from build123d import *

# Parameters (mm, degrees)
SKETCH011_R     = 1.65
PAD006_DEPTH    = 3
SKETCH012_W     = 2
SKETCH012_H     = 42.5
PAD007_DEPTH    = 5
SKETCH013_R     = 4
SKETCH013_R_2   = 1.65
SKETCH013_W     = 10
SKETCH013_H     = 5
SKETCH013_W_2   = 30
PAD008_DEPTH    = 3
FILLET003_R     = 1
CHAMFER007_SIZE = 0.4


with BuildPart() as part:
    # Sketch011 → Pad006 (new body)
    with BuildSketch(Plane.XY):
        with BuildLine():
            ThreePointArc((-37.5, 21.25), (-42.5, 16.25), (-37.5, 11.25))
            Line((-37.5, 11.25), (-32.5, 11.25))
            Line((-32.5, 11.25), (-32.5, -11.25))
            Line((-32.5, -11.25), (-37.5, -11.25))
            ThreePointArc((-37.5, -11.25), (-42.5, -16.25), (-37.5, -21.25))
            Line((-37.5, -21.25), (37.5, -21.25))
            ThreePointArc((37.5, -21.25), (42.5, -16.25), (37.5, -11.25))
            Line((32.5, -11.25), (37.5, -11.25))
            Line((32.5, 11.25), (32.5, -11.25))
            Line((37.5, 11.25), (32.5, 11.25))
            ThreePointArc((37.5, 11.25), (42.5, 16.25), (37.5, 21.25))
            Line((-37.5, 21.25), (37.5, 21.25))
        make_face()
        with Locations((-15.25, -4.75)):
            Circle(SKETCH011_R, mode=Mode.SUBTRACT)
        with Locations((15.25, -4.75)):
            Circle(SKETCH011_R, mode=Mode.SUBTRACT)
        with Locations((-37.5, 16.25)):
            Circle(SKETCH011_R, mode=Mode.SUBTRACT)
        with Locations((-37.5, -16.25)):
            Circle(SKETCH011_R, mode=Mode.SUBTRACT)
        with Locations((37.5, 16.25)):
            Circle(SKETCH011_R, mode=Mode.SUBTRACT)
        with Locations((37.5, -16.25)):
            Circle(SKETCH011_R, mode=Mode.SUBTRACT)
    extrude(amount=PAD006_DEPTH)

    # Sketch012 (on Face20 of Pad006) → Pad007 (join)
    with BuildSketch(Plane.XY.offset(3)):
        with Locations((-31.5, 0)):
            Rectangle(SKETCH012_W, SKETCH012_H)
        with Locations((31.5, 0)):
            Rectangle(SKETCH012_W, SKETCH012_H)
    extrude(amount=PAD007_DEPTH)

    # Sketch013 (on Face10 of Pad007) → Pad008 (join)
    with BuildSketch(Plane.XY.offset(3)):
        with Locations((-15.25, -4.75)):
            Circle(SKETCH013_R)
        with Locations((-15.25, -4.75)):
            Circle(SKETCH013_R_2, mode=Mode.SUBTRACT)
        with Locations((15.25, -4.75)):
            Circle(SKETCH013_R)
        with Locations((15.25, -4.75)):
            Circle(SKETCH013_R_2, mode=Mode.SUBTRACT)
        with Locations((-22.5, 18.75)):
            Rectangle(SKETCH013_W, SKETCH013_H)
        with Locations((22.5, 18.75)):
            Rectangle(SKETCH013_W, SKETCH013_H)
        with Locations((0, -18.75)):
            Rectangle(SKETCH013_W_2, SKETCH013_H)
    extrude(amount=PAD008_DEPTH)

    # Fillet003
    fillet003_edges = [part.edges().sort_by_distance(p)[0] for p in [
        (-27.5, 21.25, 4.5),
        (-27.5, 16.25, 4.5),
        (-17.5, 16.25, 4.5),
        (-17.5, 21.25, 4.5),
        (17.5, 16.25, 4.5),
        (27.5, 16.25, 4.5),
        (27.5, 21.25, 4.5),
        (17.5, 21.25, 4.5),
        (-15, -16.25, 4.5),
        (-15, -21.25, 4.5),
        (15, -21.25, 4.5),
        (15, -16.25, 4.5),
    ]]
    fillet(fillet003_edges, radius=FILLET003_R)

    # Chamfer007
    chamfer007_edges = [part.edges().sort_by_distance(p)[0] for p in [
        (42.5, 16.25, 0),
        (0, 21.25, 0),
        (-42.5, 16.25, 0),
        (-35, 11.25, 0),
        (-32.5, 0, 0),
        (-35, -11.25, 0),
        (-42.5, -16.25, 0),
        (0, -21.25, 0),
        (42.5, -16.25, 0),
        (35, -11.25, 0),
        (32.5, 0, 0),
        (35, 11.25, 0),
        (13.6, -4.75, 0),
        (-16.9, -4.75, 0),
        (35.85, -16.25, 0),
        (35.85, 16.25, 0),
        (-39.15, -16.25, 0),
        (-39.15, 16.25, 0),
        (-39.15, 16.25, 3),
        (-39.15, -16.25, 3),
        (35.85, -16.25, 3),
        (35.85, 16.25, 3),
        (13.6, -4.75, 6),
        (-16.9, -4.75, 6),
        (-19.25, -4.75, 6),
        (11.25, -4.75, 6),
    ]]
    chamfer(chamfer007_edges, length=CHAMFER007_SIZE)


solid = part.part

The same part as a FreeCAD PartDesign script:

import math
import FreeCAD as App
import Part
import Sketcher

V = App.Vector


def edges_at(feature, points):
    """Names of the edges that pass closest to the given points."""
    edges = feature.Shape.Edges
    near = lambda p: min(range(len(edges)), key=lambda i: edges[i].distToShape(Part.Vertex(*p))[0])
    return sorted({f"Edge{near(p) + 1}" for p in points})


def add_polygon(sketch, points):
    """Adds a closed chain of lines whose ends are joined by coincident constraints."""
    first, n = sketch.GeometryCount, len(points)
    for a, b in zip(points, points[1:] + points[:1]):
        sketch.addGeometry(Part.LineSegment(App.Vector(*a, 0), App.Vector(*b, 0)), False)
    for i in range(n):
        sketch.addConstraint(Sketcher.Constraint("Coincident", first + i, 2, first + (i + 1) % n, 1))

doc = App.newDocument("Part")
params = doc.addObject("Spreadsheet::Sheet", "Params")
for row, (alias, value) in enumerate([
    ("sketch1_radius", "5 mm"),
    ("sketch1_diameter", "3.3 mm"),
    ("sketch1_width", "5 mm"),
    ("sketch1_width2", "75 mm"),
    ("sketch1_height", "22.5 mm"),
    ("pad1_length", "3 mm"),
    ("sketch2_width", "2 mm"),
    ("sketch2_height", "42.5 mm"),
    ("pad2_length", "5 mm"),
    ("sketch3_diameter", "8 mm"),
    ("sketch3_diameter2", "3.3 mm"),
    ("sketch3_width", "10 mm"),
    ("sketch3_width2", "30 mm"),
    ("sketch3_height", "5 mm"),
    ("pad3_length", "3 mm"),
    ("fillet_radius", "1 mm"),
    ("chamfer_size", "0.4 mm"),
], start=1):
    params.set(f"A{row}", alias)
    params.set(f"B{row}", "=" + value)
    params.setAlias(f"B{row}", alias)

body = doc.addObject("PartDesign::Body", "Body")

sketch1 = doc.addObject("Sketcher::SketchObject", "Sketch")
body.addObject(sketch1)
sketch1.AttachmentSupport = (doc.XY_Plane, [""])
sketch1.MapMode = "FlatFace"
sketch1.addGeometry(Part.ArcOfCircle(Part.Circle(V(-37.5, 16.2, 0), V(0, 0, 1), 5), math.radians(90), math.radians(270)), False)
sketch1.addGeometry(Part.LineSegment(V(-37.5, 11.2, 0), V(-32.5, 11.2, 0)), False)
sketch1.addGeometry(Part.LineSegment(V(-32.5, 11.2, 0), V(-32.5, -11.2, 0)), False)
sketch1.addGeometry(Part.LineSegment(V(-32.5, -11.2, 0), V(-37.5, -11.2, 0)), False)
sketch1.addGeometry(Part.ArcOfCircle(Part.Circle(V(-37.5, -16.2, 0), V(0, 0, 1), 5), math.radians(90), math.radians(270)), False)
sketch1.addGeometry(Part.LineSegment(V(-37.5, -21.2, 0), V(37.5, -21.2, 0)), False)
sketch1.addGeometry(Part.ArcOfCircle(Part.Circle(V(37.5, -16.2, 0), V(0, 0, 1), 5), math.radians(-90), math.radians(90)), False)
sketch1.addGeometry(Part.LineSegment(V(37.5, -11.2, 0), V(32.5, -11.2, 0)), False)
sketch1.addGeometry(Part.LineSegment(V(32.5, -11.2, 0), V(32.5, 11.2, 0)), False)
sketch1.addGeometry(Part.LineSegment(V(32.5, 11.2, 0), V(37.5, 11.2, 0)), False)
sketch1.addGeometry(Part.ArcOfCircle(Part.Circle(V(37.5, 16.2, 0), V(0, 0, 1), 5), math.radians(-90), math.radians(90)), False)
sketch1.addGeometry(Part.LineSegment(V(37.5, 21.2, 0), V(-37.5, 21.2, 0)), False)
sketch1.addGeometry(Part.Circle(V(-37.5, -16.2, 0), V(0, 0, 1), 1.6), False)
sketch1.addGeometry(Part.Circle(V(-15.2, -4.8, 0), V(0, 0, 1), 1.6), False)
sketch1.addGeometry(Part.Circle(V(37.5, -16.2, 0), V(0, 0, 1), 1.6), False)
sketch1.addGeometry(Part.Circle(V(15.2, -4.8, 0), V(0, 0, 1), 1.6), False)
sketch1.addGeometry(Part.Circle(V(-37.5, 16.2, 0), V(0, 0, 1), 1.6), False)
sketch1.addGeometry(Part.Circle(V(37.5, 16.2, 0), V(0, 0, 1), 1.6), False)
sketch1.addConstraint(Sketcher.Constraint("Tangent", 0, 2, 1, 1))
sketch1.addConstraint(Sketcher.Constraint("Coincident", 1, 2, 2, 1))
sketch1.addConstraint(Sketcher.Constraint("Coincident", 2, 2, 3, 1))
sketch1.addConstraint(Sketcher.Constraint("Tangent", 3, 2, 4, 1))
sketch1.addConstraint(Sketcher.Constraint("Tangent", 4, 2, 5, 1))
sketch1.addConstraint(Sketcher.Constraint("Tangent", 5, 2, 6, 1))
sketch1.addConstraint(Sketcher.Constraint("Tangent", 6, 2, 7, 1))
sketch1.addConstraint(Sketcher.Constraint("Coincident", 7, 2, 8, 1))
sketch1.addConstraint(Sketcher.Constraint("Coincident", 8, 2, 9, 1))
sketch1.addConstraint(Sketcher.Constraint("Tangent", 9, 2, 10, 1))
sketch1.addConstraint(Sketcher.Constraint("Tangent", 10, 2, 11, 1))
sketch1.addConstraint(Sketcher.Constraint("Tangent", 11, 2, 0, 1))
sketch1.addConstraint(Sketcher.Constraint("Horizontal", 1))
sketch1.addConstraint(Sketcher.Constraint("Vertical", 2))
sketch1.addConstraint(Sketcher.Constraint("Horizontal", 3))
sketch1.addConstraint(Sketcher.Constraint("Horizontal", 5))
sketch1.addConstraint(Sketcher.Constraint("Horizontal", 7))
sketch1.addConstraint(Sketcher.Constraint("Vertical", 8))
sketch1.addConstraint(Sketcher.Constraint("Horizontal", 9))
sketch1.addConstraint(Sketcher.Constraint("Horizontal", 11))
sketch1.addConstraint(Sketcher.Constraint("Coincident", 12, 3, 4, 3))
sketch1.addConstraint(Sketcher.Constraint("Coincident", 14, 3, 6, 3))
sketch1.addConstraint(Sketcher.Constraint("Coincident", 16, 3, 0, 3))
sketch1.addConstraint(Sketcher.Constraint("Coincident", 17, 3, 10, 3))
sketch1.addConstraint(Sketcher.Constraint("Equal", 0, 4))
sketch1.addConstraint(Sketcher.Constraint("Equal", 4, 6))
sketch1.addConstraint(Sketcher.Constraint("Equal", 6, 10))
sketch1.addConstraint(Sketcher.Constraint("Equal", 12, 13))
sketch1.addConstraint(Sketcher.Constraint("Equal", 13, 14))
sketch1.addConstraint(Sketcher.Constraint("Equal", 14, 15))
sketch1.addConstraint(Sketcher.Constraint("Equal", 15, 16))
sketch1.addConstraint(Sketcher.Constraint("Equal", 16, 17))
sketch1.addConstraint(Sketcher.Constraint("Symmetric", 0, 3, 6, 3, -1, 1))
sketch1.addConstraint(Sketcher.Constraint("Symmetric", 13, 3, 15, 3, -2))
sketch1.addConstraint(Sketcher.Constraint("Vertical", 0, 3, 4, 3))
sketch1.addConstraint(Sketcher.Constraint("Vertical", 6, 3, 10, 3))
sketch1.addConstraint(Sketcher.Constraint("Equal", 3, 7))
sketch1.addConstraint(Sketcher.Constraint("Radius", 0, 5.0))
sketch1.addConstraint(Sketcher.Constraint("Diameter", 12, 3.3))
sketch1.addConstraint(Sketcher.Constraint("DistanceX", 1, 1, 1, 2, 5.0))
sketch1.addConstraint(Sketcher.Constraint("DistanceX", 5, 1, 5, 2, 75.0))
sketch1.addConstraint(Sketcher.Constraint("DistanceY", 2, 2, 2, 1, 22.5))
sketch1.addConstraint(Sketcher.Constraint("DistanceY", 13, 3, 0, 3, 21.0))
sketch1.addConstraint(Sketcher.Constraint("DistanceX", 13, 3, 15, 3, 30.5))
sketch1.setExpression("Constraints[37]", "Params.sketch1_radius")
sketch1.setExpression("Constraints[38]", "Params.sketch1_diameter")
sketch1.setExpression("Constraints[39]", "Params.sketch1_width")
sketch1.setExpression("Constraints[40]", "Params.sketch1_width2")
sketch1.setExpression("Constraints[41]", "Params.sketch1_height")
pad1 = doc.addObject("PartDesign::Pad", "Pad")
body.addObject(pad1)
pad1.Profile = sketch1
pad1.setExpression("Length", "Params.pad1_length")

sketch2 = doc.addObject("Sketcher::SketchObject", "Sketch001")
body.addObject(sketch2)
sketch2.AttachmentSupport = (doc.XY_Plane, [""])
sketch2.MapMode = "FlatFace"
sketch2.AttachmentOffset = App.Placement(V(0, 0, 3), App.Rotation())
add_polygon(sketch2, [(-32.5, 21.2), (-32.5, -21.2), (-30.5, -21.2), (-30.5, 21.2)])
add_polygon(sketch2, [(30.5, 21.2), (30.5, -21.2), (32.5, -21.2), (32.5, 21.2)])
sketch2.addConstraint(Sketcher.Constraint("Vertical", 0))
sketch2.addConstraint(Sketcher.Constraint("Horizontal", 1))
sketch2.addConstraint(Sketcher.Constraint("Vertical", 2))
sketch2.addConstraint(Sketcher.Constraint("Horizontal", 3))
sketch2.addConstraint(Sketcher.Constraint("Vertical", 4))
sketch2.addConstraint(Sketcher.Constraint("Horizontal", 5))
sketch2.addConstraint(Sketcher.Constraint("Vertical", 6))
sketch2.addConstraint(Sketcher.Constraint("Horizontal", 7))
sketch2.addConstraint(Sketcher.Constraint("Symmetric", 2, 2, 4, 2, -1, 1))
sketch2.addConstraint(Sketcher.Constraint("Symmetric", 0, 2, 6, 2, -1, 1))
sketch2.addConstraint(Sketcher.Constraint("Horizontal", 1, 2, 4, 2))
sketch2.addConstraint(Sketcher.Constraint("DistanceX", 1, 1, 1, 2, 2.0))
sketch2.addConstraint(Sketcher.Constraint("DistanceY", 0, 2, 0, 1, 42.5))
sketch2.addConstraint(Sketcher.Constraint("DistanceX", 1, 2, 4, 2, 61.0))
sketch2.setExpression("Constraints[19]", "Params.sketch2_width")
sketch2.setExpression("Constraints[20]", "Params.sketch2_height")
pad2 = doc.addObject("PartDesign::Pad", "Pad001")
body.addObject(pad2)
pad2.Profile = sketch2
pad2.setExpression("Length", "Params.pad2_length")

sketch3 = doc.addObject("Sketcher::SketchObject", "Sketch002")
body.addObject(sketch3)
sketch3.AttachmentSupport = (doc.XY_Plane, [""])
sketch3.MapMode = "FlatFace"
sketch3.AttachmentOffset = App.Placement(V(0, 0, 3), App.Rotation())
sketch3.addGeometry(Part.Circle(V(-15.2, -4.8, 0), V(0, 0, 1), 4), False)
sketch3.addGeometry(Part.Circle(V(-15.2, -4.8, 0), V(0, 0, 1), 1.6), False)
sketch3.addGeometry(Part.Circle(V(15.2, -4.8, 0), V(0, 0, 1), 4), False)
sketch3.addGeometry(Part.Circle(V(15.2, -4.8, 0), V(0, 0, 1), 1.6), False)
add_polygon(sketch3, [(-27.5, 21.2), (-27.5, 16.2), (-17.5, 16.2), (-17.5, 21.2)])
add_polygon(sketch3, [(17.5, 21.2), (17.5, 16.2), (27.5, 16.2), (27.5, 21.2)])
add_polygon(sketch3, [(-15, -16.2), (-15, -21.2), (15, -21.2), (15, -16.2)])
sketch3.addConstraint(Sketcher.Constraint("Vertical", 4))
sketch3.addConstraint(Sketcher.Constraint("Horizontal", 5))
sketch3.addConstraint(Sketcher.Constraint("Vertical", 6))
sketch3.addConstraint(Sketcher.Constraint("Horizontal", 7))
sketch3.addConstraint(Sketcher.Constraint("Vertical", 8))
sketch3.addConstraint(Sketcher.Constraint("Horizontal", 9))
sketch3.addConstraint(Sketcher.Constraint("Vertical", 10))
sketch3.addConstraint(Sketcher.Constraint("Horizontal", 11))
sketch3.addConstraint(Sketcher.Constraint("Vertical", 12))
sketch3.addConstraint(Sketcher.Constraint("Horizontal", 13))
sketch3.addConstraint(Sketcher.Constraint("Vertical", 14))
sketch3.addConstraint(Sketcher.Constraint("Horizontal", 15))
sketch3.addConstraint(Sketcher.Constraint("Coincident", 1, 3, 0, 3))
sketch3.addConstraint(Sketcher.Constraint("Coincident", 3, 3, 2, 3))
sketch3.addConstraint(Sketcher.Constraint("Equal", 0, 2))
sketch3.addConstraint(Sketcher.Constraint("Equal", 1, 3))
sketch3.addConstraint(Sketcher.Constraint("Symmetric", 0, 3, 2, 3, -2))
sketch3.addConstraint(Sketcher.Constraint("Symmetric", 5, 2, 8, 2, -2))
sketch3.addConstraint(Sketcher.Constraint("Symmetric", 7, 2, 10, 2, -2))
sketch3.addConstraint(Sketcher.Constraint("Equal", 10, 12))
sketch3.addConstraint(Sketcher.Constraint("Diameter", 0, 8.0))
sketch3.addConstraint(Sketcher.Constraint("Diameter", 1, 3.3))
sketch3.addConstraint(Sketcher.Constraint("DistanceX", 5, 1, 5, 2, 10.0))
sketch3.addConstraint(Sketcher.Constraint("DistanceX", 13, 1, 13, 2, 30.0))
sketch3.addConstraint(Sketcher.Constraint("DistanceY", 4, 2, 4, 1, 5.0))
sketch3.addConstraint(Sketcher.Constraint("DistanceX", 12, 2, -1, 1, 15.0))
sketch3.addConstraint(Sketcher.Constraint("DistanceY", 0, 3, 4, 2, 21.0))
sketch3.addConstraint(Sketcher.Constraint("DistanceX", 5, 2, 8, 2, 35.0))
sketch3.addConstraint(Sketcher.Constraint("DistanceX", 0, 3, 2, 3, 30.5))
sketch3.addConstraint(Sketcher.Constraint("DistanceY", 12, 2, 0, 3, 16.5))
sketch3.addConstraint(Sketcher.Constraint("DistanceY", 0, 3, -1, 1, 4.75))
sketch3.setExpression("Constraints[32]", "Params.sketch3_diameter")
sketch3.setExpression("Constraints[33]", "Params.sketch3_diameter2")
sketch3.setExpression("Constraints[34]", "Params.sketch3_width")
sketch3.setExpression("Constraints[35]", "Params.sketch3_width2")
sketch3.setExpression("Constraints[36]", "Params.sketch3_height")
pad3 = doc.addObject("PartDesign::Pad", "Pad002")
body.addObject(pad3)
pad3.Profile = sketch3
pad3.setExpression("Length", "Params.pad3_length")
doc.recompute()

fillet = doc.addObject("PartDesign::Fillet", "Fillet")
body.addObject(fillet)
fillet.Base = (pad3, edges_at(pad3, [
    (-27.5, 21.25, 4.5),
    (-27.5, 16.25, 4.5),
    (-17.5, 16.25, 4.5),
    (-17.5, 21.25, 4.5),
    (17.5, 16.25, 4.5),
    (27.5, 16.25, 4.5),
    (27.5, 21.25, 4.5),
    (17.5, 21.25, 4.5),
    (-15, -16.25, 4.5),
    (-15, -21.25, 4.5),
    (15, -21.25, 4.5),
    (15, -16.25, 4.5),
]))
fillet.setExpression("Radius", "Params.fillet_radius")
doc.recompute()

chamfer = doc.addObject("PartDesign::Chamfer", "Chamfer")
body.addObject(chamfer)
chamfer.Base = (fillet, edges_at(fillet, [
    (42.5, 16.25, 0),
    (0, 21.25, 0),
    (-42.5, 16.25, 0),
    (-35, 11.25, 0),
    (-32.5, 0, 0),
    (-35, -11.25, 0),
    (-42.5, -16.25, 0),
    (0, -21.25, 0),
    (42.5, -16.25, 0),
    (35, -11.25, 0),
    (32.5, 0, 0),
    (35, 11.25, 0),
    (13.6, -4.75, 0),
    (-16.9, -4.75, 0),
    (35.85, -16.25, 0),
    (35.85, 16.25, 0),
    (-39.15, -16.25, 0),
    (-39.15, 16.25, 0),
    (-39.15, 16.25, 3),
    (-39.15, -16.25, 3),
    (35.85, -16.25, 3),
    (35.85, 16.25, 3),
    (13.6, -4.75, 6),
    (-16.9, -4.75, 6),
    (-19.25, -4.75, 6),
    (11.25, -4.75, 6),
]))
chamfer.setExpression("Size", "Params.chamfer_size")

doc.recompute()
